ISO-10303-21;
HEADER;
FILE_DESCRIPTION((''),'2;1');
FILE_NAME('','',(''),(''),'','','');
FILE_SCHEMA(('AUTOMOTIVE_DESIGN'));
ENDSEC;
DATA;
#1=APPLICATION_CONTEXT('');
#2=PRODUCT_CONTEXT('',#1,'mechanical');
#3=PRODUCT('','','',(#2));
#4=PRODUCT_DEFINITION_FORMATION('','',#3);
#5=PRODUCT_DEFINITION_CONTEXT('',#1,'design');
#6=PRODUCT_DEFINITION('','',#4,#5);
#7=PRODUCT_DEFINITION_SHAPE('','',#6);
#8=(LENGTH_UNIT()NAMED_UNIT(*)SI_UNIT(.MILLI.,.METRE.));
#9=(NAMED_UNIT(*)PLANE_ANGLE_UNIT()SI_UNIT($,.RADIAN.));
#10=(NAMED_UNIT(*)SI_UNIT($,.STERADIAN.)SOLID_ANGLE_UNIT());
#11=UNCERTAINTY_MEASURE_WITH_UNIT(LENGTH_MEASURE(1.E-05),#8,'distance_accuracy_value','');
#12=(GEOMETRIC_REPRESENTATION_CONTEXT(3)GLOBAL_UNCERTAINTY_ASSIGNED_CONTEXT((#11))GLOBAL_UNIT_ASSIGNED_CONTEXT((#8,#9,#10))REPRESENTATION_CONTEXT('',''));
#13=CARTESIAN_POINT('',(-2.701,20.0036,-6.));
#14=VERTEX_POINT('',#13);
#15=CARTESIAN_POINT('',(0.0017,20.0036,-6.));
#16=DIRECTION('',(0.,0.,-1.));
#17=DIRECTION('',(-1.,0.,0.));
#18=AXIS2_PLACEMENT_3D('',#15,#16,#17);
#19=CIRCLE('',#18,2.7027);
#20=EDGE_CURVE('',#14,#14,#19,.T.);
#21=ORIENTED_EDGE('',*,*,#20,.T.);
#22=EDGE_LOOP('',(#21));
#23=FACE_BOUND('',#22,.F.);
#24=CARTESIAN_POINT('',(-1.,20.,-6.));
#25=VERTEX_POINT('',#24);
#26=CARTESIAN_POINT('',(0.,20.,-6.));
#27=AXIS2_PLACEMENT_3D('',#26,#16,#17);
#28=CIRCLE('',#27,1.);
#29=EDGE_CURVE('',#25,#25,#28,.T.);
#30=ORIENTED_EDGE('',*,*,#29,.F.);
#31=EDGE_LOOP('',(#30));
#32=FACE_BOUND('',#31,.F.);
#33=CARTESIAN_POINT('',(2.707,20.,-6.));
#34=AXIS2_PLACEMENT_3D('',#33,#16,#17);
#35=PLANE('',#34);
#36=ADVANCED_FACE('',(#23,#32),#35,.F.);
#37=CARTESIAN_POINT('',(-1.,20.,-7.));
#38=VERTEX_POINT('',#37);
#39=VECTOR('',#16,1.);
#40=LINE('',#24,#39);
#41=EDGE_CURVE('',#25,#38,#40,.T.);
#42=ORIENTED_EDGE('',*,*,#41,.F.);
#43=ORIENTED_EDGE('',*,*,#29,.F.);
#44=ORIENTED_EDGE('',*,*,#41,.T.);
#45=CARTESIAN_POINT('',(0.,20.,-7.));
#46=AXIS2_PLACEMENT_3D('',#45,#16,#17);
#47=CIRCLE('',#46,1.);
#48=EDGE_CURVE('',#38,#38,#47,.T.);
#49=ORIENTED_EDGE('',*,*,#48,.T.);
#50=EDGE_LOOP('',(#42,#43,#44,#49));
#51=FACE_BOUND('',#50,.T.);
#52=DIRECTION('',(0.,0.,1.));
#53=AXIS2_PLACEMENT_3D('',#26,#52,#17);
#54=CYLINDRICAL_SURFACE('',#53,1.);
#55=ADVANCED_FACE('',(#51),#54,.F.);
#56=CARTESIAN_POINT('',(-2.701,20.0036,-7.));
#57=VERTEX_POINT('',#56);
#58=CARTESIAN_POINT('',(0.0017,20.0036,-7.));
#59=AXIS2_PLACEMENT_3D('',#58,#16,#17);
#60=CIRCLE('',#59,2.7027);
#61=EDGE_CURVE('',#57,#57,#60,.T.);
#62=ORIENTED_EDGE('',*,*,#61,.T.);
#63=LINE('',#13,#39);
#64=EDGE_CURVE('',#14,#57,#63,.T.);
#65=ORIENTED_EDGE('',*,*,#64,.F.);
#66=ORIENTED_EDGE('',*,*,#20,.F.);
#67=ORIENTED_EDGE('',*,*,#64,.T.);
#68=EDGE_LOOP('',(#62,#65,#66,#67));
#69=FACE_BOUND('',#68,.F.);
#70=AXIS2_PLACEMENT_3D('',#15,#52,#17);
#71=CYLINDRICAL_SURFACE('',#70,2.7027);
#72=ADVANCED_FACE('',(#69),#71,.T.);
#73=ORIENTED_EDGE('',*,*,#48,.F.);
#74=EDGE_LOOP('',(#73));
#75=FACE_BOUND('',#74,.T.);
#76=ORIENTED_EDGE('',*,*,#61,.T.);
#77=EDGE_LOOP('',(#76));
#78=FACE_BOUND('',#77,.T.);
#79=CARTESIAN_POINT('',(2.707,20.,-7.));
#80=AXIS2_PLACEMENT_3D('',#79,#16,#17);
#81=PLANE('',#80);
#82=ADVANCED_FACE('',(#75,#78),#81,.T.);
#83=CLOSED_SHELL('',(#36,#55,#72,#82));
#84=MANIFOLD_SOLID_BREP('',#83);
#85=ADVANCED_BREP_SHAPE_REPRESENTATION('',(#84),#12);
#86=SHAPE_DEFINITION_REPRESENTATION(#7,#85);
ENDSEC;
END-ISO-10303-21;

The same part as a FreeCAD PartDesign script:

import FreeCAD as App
import Part
import Sketcher
from FreeCAD import Vector

doc = App.newDocument("Part")
params = doc.addObject("Spreadsheet::Sheet", "Params")
for row, (alias, value) in enumerate([
    ("sketch1_diameter", "2 mm"),
    ("pad1_length", "1 mm"),
], start=1):
    params.set(f"A{row}", alias)
    params.set(f"B{row}", "=" + value)
    params.setAlias(f"B{row}", alias)

body = doc.addObject("PartDesign::Body", "Body")

# Sketch on XY plane
sketch1 = body.newObject("Sketcher::SketchObject", "Sketch")
sketch1.AttachmentSupport = (doc.getObject("XY_Plane"), [""])
sketch1.MapMode = "FlatFace"
sketch1.AttachmentOffset = App.Placement(Vector(0, 0, -6), App.Rotation())
sketch1.addGeometry([
    Part.Circle(Vector(0.0017, 20.0036, 0), Vector(0, 0, 1), 2.7027),
    Part.Circle(Vector(0, 20, 0), Vector(0, 0, 1), 1),
], False)
sketch1.addConstraint([
    Sketcher.Constraint("PointOnObject", 1, 3, -2),
    Sketcher.Constraint("Diameter", 1, 2.0),
    Sketcher.Constraint("DistanceY", -1, 1, 1, 3, 20.0),
    Sketcher.Constraint("Diameter", 0, 5.4054),
    Sketcher.Constraint("DistanceX", -1, 1, 0, 3, 0.0017),
    Sketcher.Constraint("DistanceY", -1, 1, 0, 3, 20.0036),
])
sketch1.setExpression("Constraints[1]", "Params.sketch1_diameter")
pad1 = body.newObject("PartDesign::Pad", "Pad")
pad1.Profile = sketch1
pad1.setExpression("Length", "Params.pad1_length")
pad1.Reversed = True

doc.recompute()
